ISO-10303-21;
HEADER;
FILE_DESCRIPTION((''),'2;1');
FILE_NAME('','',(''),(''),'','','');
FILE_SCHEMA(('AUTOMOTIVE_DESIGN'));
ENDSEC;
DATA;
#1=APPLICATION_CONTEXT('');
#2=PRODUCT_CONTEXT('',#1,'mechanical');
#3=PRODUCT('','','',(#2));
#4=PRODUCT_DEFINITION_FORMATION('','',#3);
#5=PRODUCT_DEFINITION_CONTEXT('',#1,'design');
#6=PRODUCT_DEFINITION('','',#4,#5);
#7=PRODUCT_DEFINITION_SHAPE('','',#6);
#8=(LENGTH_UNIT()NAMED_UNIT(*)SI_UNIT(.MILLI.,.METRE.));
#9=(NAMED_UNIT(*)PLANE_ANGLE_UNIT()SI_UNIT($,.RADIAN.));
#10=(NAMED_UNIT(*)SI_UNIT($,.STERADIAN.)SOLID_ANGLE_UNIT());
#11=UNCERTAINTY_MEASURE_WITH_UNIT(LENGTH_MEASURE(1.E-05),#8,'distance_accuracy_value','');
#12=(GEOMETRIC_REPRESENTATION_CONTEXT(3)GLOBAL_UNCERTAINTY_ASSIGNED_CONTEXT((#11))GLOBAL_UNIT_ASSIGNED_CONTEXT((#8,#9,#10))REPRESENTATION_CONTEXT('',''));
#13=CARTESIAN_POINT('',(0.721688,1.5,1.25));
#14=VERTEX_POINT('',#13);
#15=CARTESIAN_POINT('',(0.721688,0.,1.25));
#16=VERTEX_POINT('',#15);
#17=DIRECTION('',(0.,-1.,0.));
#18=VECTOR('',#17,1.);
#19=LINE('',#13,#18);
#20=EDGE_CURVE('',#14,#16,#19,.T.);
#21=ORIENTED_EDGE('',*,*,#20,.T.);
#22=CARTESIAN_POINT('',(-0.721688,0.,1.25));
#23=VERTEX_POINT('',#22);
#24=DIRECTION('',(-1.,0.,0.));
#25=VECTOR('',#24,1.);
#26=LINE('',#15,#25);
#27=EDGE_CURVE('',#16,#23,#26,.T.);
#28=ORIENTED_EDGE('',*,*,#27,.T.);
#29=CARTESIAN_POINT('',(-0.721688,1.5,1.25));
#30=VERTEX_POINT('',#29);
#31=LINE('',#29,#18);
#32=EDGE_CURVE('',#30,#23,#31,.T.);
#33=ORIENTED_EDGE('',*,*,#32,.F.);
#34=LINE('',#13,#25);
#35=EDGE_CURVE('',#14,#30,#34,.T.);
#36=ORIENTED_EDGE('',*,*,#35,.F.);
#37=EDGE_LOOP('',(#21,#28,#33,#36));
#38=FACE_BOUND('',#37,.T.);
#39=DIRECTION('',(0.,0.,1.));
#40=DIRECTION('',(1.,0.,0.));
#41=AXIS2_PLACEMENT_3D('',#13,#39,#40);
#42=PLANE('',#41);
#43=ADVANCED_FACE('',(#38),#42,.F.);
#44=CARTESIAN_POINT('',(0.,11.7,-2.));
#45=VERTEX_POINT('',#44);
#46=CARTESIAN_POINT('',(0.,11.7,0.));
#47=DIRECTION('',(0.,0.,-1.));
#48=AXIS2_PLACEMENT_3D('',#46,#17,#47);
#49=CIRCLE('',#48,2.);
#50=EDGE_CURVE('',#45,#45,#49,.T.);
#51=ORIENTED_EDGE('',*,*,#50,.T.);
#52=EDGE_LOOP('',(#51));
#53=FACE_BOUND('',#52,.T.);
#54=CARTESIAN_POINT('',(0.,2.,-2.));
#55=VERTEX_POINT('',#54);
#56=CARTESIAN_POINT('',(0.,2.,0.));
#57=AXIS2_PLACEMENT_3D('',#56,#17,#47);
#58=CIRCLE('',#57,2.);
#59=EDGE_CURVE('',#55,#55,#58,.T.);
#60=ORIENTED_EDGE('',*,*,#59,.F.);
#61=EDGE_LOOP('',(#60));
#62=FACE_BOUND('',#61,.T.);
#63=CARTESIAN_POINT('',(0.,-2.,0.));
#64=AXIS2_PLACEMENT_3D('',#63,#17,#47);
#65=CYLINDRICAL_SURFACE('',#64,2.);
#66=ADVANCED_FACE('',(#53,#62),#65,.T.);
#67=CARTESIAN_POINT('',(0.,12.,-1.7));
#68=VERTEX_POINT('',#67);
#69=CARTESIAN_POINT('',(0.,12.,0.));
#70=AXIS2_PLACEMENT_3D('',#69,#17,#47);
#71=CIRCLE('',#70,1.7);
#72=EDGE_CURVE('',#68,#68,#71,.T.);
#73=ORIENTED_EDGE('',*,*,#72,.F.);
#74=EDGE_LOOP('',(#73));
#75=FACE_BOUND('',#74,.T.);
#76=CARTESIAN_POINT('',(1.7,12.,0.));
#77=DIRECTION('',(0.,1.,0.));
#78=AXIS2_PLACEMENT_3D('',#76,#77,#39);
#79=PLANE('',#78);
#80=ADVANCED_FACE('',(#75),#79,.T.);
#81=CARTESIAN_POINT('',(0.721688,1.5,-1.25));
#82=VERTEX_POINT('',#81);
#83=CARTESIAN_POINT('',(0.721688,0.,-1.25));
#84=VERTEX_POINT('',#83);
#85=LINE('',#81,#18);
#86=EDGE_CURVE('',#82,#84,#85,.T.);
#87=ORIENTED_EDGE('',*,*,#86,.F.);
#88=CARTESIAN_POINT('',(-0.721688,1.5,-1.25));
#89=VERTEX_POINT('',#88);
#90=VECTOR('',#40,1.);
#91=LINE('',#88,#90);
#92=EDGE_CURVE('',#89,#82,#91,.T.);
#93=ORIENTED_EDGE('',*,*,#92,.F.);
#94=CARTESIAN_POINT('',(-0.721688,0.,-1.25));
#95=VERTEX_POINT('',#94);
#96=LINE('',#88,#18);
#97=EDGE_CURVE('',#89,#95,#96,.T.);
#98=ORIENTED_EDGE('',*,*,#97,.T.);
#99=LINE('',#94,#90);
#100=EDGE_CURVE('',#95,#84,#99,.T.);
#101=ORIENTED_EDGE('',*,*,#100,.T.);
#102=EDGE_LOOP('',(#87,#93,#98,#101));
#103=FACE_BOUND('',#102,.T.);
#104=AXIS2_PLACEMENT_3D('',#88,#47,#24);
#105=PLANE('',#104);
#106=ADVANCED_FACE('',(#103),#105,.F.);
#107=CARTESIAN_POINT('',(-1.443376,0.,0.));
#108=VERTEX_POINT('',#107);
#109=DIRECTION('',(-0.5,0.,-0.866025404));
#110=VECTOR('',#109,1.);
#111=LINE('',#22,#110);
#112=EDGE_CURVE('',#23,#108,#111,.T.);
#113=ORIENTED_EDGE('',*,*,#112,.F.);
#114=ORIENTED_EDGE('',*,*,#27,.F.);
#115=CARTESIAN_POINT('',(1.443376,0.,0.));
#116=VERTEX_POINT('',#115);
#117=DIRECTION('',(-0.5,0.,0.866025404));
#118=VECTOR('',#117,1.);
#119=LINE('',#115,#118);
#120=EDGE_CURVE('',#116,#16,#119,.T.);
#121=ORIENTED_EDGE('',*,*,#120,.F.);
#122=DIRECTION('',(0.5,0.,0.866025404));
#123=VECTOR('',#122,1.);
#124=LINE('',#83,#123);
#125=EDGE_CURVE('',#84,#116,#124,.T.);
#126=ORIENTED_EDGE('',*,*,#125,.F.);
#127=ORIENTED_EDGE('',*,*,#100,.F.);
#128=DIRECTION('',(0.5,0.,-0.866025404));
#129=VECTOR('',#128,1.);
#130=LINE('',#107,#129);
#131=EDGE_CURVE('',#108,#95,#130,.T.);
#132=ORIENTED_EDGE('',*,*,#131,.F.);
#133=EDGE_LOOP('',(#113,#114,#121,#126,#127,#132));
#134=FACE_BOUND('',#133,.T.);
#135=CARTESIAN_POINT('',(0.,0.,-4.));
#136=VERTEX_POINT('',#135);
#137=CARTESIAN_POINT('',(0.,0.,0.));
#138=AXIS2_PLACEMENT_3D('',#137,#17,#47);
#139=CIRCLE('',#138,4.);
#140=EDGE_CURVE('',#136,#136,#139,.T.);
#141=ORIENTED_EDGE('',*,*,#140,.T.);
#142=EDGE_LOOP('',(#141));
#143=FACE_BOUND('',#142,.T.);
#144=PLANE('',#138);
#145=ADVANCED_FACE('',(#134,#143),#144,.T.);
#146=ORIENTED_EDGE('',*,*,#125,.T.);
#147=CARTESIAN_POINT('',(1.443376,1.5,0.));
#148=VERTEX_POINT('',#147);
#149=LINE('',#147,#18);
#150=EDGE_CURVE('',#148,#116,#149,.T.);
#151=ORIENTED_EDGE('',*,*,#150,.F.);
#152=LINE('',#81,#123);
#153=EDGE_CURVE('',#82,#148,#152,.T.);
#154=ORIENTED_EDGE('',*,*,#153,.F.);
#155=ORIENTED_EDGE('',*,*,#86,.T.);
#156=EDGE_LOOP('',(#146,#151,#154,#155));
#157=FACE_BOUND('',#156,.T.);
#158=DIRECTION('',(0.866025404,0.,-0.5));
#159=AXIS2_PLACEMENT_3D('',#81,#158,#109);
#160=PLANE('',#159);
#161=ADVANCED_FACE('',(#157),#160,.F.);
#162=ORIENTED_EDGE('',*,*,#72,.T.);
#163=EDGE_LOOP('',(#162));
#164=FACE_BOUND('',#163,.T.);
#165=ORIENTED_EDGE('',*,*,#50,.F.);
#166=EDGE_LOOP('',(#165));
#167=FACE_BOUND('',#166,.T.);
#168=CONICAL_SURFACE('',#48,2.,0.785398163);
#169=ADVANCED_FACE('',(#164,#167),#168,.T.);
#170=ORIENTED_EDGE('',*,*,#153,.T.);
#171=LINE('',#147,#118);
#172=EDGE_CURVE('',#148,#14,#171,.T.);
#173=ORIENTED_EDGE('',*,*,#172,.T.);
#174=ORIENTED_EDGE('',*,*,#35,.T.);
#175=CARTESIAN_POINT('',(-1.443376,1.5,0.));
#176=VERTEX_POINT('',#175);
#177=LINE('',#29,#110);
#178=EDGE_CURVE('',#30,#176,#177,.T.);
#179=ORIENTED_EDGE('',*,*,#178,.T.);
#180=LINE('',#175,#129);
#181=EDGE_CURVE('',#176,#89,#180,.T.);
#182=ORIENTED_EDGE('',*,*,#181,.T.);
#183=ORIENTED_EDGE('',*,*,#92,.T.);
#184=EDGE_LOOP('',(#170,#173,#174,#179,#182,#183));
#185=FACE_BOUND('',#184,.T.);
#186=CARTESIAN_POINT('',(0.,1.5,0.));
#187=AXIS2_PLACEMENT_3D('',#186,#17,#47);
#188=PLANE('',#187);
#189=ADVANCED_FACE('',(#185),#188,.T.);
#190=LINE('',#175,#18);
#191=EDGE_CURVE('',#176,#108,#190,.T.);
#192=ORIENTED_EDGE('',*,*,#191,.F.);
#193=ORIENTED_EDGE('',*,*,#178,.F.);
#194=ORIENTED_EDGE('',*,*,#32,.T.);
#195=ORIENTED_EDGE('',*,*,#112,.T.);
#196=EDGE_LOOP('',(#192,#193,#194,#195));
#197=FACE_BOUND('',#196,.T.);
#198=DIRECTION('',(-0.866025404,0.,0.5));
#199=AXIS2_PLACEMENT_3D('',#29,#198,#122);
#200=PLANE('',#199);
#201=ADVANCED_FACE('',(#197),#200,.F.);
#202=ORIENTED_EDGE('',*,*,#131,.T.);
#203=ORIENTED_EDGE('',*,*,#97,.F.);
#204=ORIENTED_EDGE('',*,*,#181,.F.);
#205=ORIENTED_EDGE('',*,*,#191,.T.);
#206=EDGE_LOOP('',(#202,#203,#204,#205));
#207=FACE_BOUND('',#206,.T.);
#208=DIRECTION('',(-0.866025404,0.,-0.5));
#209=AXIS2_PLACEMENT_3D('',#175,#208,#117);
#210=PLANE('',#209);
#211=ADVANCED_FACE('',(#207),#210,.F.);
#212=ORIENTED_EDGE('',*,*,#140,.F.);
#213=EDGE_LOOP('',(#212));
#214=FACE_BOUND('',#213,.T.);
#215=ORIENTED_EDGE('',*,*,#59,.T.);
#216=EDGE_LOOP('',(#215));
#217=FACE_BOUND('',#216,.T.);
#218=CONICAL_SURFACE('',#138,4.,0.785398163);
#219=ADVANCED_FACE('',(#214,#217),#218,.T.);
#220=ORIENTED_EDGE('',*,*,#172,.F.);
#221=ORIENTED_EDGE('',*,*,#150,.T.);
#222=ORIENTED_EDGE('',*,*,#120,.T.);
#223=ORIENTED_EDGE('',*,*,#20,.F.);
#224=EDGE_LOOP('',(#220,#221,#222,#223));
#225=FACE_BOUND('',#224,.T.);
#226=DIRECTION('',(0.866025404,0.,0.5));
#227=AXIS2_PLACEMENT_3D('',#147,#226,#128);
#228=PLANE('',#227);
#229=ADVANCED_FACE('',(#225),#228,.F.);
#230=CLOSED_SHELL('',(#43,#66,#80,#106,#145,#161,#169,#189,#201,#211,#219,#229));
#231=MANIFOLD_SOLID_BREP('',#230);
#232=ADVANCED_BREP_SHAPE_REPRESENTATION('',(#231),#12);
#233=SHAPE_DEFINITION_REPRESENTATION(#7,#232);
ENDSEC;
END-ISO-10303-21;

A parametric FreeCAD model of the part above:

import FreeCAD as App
import Part
import Sketcher
Q = App.Units.Quantity

doc = App.newDocument("Part")
body = doc.addObject("PartDesign::Body", "Body")

sketch1 = body.newObject("Sketcher::SketchObject", "Sketch")
sketch1.AttachmentSupport = (doc.getObject("XY_Plane"), [""])
sketch1.MapMode = "FlatFace"
sketch1.addGeometry([
    Part.LineSegment(App.Vector(0, 0, 0), App.Vector(4, 0, 0)),
    Part.LineSegment(App.Vector(4, 0, 0), App.Vector(2, 2, 0)),
    Part.LineSegment(App.Vector(2, 2, 0), App.Vector(2, 11.7, 0)),
    Part.LineSegment(App.Vector(2, 11.7, 0), App.Vector(1.7, 12, 0)),
    Part.LineSegment(App.Vector(1.7, 12, 0), App.Vector(0, 12, 0)),
    Part.LineSegment(App.Vector(0, 12, 0), App.Vector(0, 0, 0)),
], False)
sketch1.addConstraint([
    Sketcher.Constraint("Coincident", 0, 2, 1, 1),
    Sketcher.Constraint("Coincident", 1, 2, 2, 1),
    Sketcher.Constraint("Coincident", 2, 2, 3, 1),
    Sketcher.Constraint("Coincident", 3, 2, 4, 1),
    Sketcher.Constraint("Coincident", 4, 2, 5, 1),
    Sketcher.Constraint("Coincident", 5, 2, 0, 1),
    Sketcher.Constraint("Horizontal", 0),
    Sketcher.Constraint("Vertical", 2),
    Sketcher.Constraint("Horizontal", 4),
    Sketcher.Constraint("Vertical", 5),
    Sketcher.Constraint("Coincident", 5, 2, -1, 1),
    Sketcher.Constraint("Parallel", 1, 3),
    Sketcher.Constraint("DistanceX", 0, 1, 0, 2, Q("4 mm")),
    Sketcher.Constraint("DistanceY", 5, 2, 5, 1, Q("12 mm")),
    Sketcher.Constraint("Angle", 1, Q("135 deg")),
    Sketcher.Constraint("DistanceX", 4, 2, 4, 1, Q("1.7 mm")),
    Sketcher.Constraint("DistanceX", -1, 1, 1, 2, Q("2 mm")),
])
revolution = body.newObject("PartDesign::Revolution", "Revolution")
revolution.Profile = sketch1
revolution.ReferenceAxis = (sketch1, ["V_Axis"])
revolution.Angle = 360

sketch2 = body.newObject("Sketcher::SketchObject", "Sketch001")
sketch2.AttachmentSupport = (doc.getObject("XZ_Plane"), [""])
sketch2.MapMode = "FlatFace"
sketch2.addGeometry([
    Part.LineSegment(App.Vector(1.4, 0, 0), App.Vector(0.7, 1.2, 0)),
    Part.LineSegment(App.Vector(0.7, 1.2, 0), App.Vector(-0.7, 1.2, 0)),
    Part.LineSegment(App.Vector(-0.7, 1.2, 0), App.Vector(-1.4, 0, 0)),
    Part.LineSegment(App.Vector(-1.4, 0, 0), App.Vector(-0.7, -1.2, 0)),
    Part.LineSegment(App.Vector(-0.7, -1.2, 0), App.Vector(0.7, -1.2, 0)),
    Part.LineSegment(App.Vector(0.7, -1.2, 0), App.Vector(1.4, 0, 0)),
], False)
sketch2.addConstraint([
    Sketcher.Constraint("Coincident", 0, 2, 1, 1),
    Sketcher.Constraint("Coincident", 1, 2, 2, 1),
    Sketcher.Constraint("Coincident", 2, 2, 3, 1),
    Sketcher.Constraint("Coincident", 3, 2, 4, 1),
    Sketcher.Constraint("Coincident", 4, 2, 5, 1),
    Sketcher.Constraint("Coincident", 5, 2, 0, 1),
    Sketcher.Constraint("Horizontal", 1),
    Sketcher.Constraint("Horizontal", 4),
    Sketcher.Constraint("Symmetric", 0, 2, 3, 2, -1, 1),
    Sketcher.Constraint("Symmetric", 2, 2, 5, 2, -1, 1),
    Sketcher.Constraint("PointOnObject", 2, 2, -1),
    Sketcher.Constraint("Parallel", 2, 5),
    Sketcher.Constraint("Vertical", 1, 2, 3, 2),
    Sketcher.Constraint("Angle", 0, Q("120 deg")),
    Sketcher.Constraint("DistanceY", 3, 2, 1, 2, Q("2.5 mm")),
    Sketcher.Constraint("DistanceX", 1, 2, 1, 1, Q("1.443376 mm")),
])
pocket1 = body.newObject("PartDesign::Pocket", "Pocket")
pocket1.Profile = sketch2
pocket1.Length = 1.5

doc.recompute()
